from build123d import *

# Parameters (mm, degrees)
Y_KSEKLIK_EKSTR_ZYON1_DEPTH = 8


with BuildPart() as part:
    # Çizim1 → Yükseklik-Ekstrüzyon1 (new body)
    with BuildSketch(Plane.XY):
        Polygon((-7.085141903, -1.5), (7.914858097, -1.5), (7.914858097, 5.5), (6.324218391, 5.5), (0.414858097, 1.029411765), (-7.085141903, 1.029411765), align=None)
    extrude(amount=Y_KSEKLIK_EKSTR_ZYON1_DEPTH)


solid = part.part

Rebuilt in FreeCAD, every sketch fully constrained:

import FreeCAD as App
import Part
import Sketcher
Q = App.Units.Quantity


def add_polygon(sketch, points):
    """Adds a closed chain of lines whose ends are joined by coincident constraints."""
    first, n = sketch.GeometryCount, len(points)
    for a, b in zip(points, points[1:] + points[:1]):
        sketch.addGeometry(Part.LineSegment(App.Vector(*a, 0), App.Vector(*b, 0)), False)
    for i in range(n):
        sketch.addConstraint(Sketcher.Constraint("Coincident", first + i, 2, first + (i + 1) % n, 1))

doc = App.newDocument("Part")
body = doc.addObject("PartDesign::Body", "Body")

sketch1 = body.newObject("Sketcher::SketchObject", "Sketch")
sketch1.AttachmentSupport = (doc.getObject("XY_Plane"), [""])
sketch1.MapMode = "FlatFace"
add_polygon(sketch1, [(-7.1, -1.5), (7.9, -1.5), (7.9, 5.5), (6.3, 5.5), (0.4, 1), (-7.1, 1)])
sketch1.addConstraint(Sketcher.Constraint("Horizontal", 0))
sketch1.addConstraint(Sketcher.Constraint("Vertical", 1))
sketch1.addConstraint(Sketcher.Constraint("Horizontal", 2))
sketch1.addConstraint(Sketcher.Constraint("Horizontal", 4))
sketch1.addConstraint(Sketcher.Constraint("Vertical", 5))
sketch1.addConstraint(Sketcher.Constraint("DistanceX", 0, 1, 0, 2, Q("15 mm")))
sketch1.addConstraint(Sketcher.Constraint("DistanceY", 1, 1, 1, 2, Q("7 mm")))
sketch1.addConstraint(Sketcher.Constraint("DistanceX", 4, 2, 4, 1, Q("7.5 mm")))
sketch1.addConstraint(Sketcher.Constraint("DistanceY", 0, 2, -1, 1, Q("1.5 mm")))
sketch1.addConstraint(Sketcher.Constraint("DistanceX", 2, 2, 2, 1, Q("1.59064 mm")))
sketch1.addConstraint(Sketcher.Constraint("DistanceY", 5, 2, 5, 1, Q("2.529412 mm")))
sketch1.addConstraint(Sketcher.Constraint("DistanceX", -1, 1, 0, 2, Q("7.914858 mm")))
pad1 = body.newObject("PartDesign::Pad", "Pad")
pad1.Profile = sketch1
pad1.Length = 8

doc.recompute()
